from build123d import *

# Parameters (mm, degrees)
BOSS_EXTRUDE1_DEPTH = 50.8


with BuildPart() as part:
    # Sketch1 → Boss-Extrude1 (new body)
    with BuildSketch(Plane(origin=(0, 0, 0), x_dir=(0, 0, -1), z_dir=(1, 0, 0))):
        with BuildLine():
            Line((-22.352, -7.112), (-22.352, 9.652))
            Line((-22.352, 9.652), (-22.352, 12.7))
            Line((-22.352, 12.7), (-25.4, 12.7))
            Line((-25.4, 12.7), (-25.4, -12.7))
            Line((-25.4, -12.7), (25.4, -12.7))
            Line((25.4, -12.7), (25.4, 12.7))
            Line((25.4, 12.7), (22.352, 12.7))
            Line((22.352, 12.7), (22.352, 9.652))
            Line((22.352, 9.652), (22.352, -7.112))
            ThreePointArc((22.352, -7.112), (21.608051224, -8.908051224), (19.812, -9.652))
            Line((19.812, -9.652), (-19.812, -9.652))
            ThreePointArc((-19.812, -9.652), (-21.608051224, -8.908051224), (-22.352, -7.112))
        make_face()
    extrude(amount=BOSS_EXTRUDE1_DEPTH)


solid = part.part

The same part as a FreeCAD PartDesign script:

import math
import FreeCAD as App
import Part
import Sketcher

V = App.Vector
Q = App.Units.Quantity

doc = App.newDocument("Part")
body = doc.addObject("PartDesign::Body", "Body")

# Sketch on YZ plane
sketch1 = body.newObject("Sketcher::SketchObject", "Sketch")
sketch1.AttachmentSupport = (doc.getObject("YZ_Plane"), [""])
sketch1.MapMode = "FlatFace"
sketch1.addGeometry([
    Part.LineSegment(V(-7.1, 22.4, 0), V(12.7, 22.4, 0)),  # 0
    Part.LineSegment(V(12.7, 22.4, 0), V(12.7, 25.4, 0)),  # 1
    Part.LineSegment(V(12.7, 25.4, 0), V(-12.7, 25.4, 0)),  # 2
    Part.LineSegment(V(-12.7, 25.4, 0), V(-12.7, -25.4, 0)),  # 3
    Part.LineSegment(V(-12.7, -25.4, 0), V(12.7, -25.4, 0)),  # 4
    Part.LineSegment(V(12.7, -25.4, 0), V(12.7, -22.4, 0)),  # 5
    Part.LineSegment(V(12.7, -22.4, 0), V(-7.1, -22.4, 0)),  # 6
    Part.ArcOfCircle(Part.Circle(V(-7.1, -19.8, 0), V(0, 0, 1), 2.5), math.radians(-180), math.radians(-90)),  # 7
    Part.LineSegment(V(-9.7, -19.8, 0), V(-9.7, 19.8, 0)),  # 8
    Part.ArcOfCircle(Part.Circle(V(-7.1, 19.8, 0), V(0, 0, 1), 2.5), math.radians(90), math.radians(180)),  # 9
], False)
sketch1.addConstraint([
    Sketcher.Constraint("Coincident", 0, 2, 1, 1),
    Sketcher.Constraint("Coincident", 1, 2, 2, 1),
    Sketcher.Constraint("Coincident", 2, 2, 3, 1),
    Sketcher.Constraint("Coincident", 3, 2, 4, 1),
    Sketcher.Constraint("Coincident", 4, 2, 5, 1),
    Sketcher.Constraint("Coincident", 5, 2, 6, 1),
    Sketcher.Constraint("Tangent", 6, 2, 7, 2),
    Sketcher.Constraint("Tangent", 7, 1, 8, 1),
    Sketcher.Constraint("Tangent", 8, 2, 9, 2),
    Sketcher.Constraint("Tangent", 9, 1, 0, 1),
    Sketcher.Constraint("Horizontal", 0),
    Sketcher.Constraint("Vertical", 1),
    Sketcher.Constraint("Horizontal", 2),
    Sketcher.Constraint("Vertical", 3),
    Sketcher.Constraint("Horizontal", 4),
    Sketcher.Constraint("Vertical", 5),
    Sketcher.Constraint("Horizontal", 6),
    Sketcher.Constraint("Vertical", 8),
    Sketcher.Constraint("Equal", 7, 9),
    Sketcher.Constraint("Symmetric", 1, 2, 3, 2, -1, 1),
    Sketcher.Constraint("Symmetric", 0, 2, 5, 2, -1),
    Sketcher.Constraint("Radius", 7, Q("0.1 in")),
    Sketcher.Constraint("DistanceX", 2, 2, 2, 1, Q("1 in")),
    Sketcher.Constraint("DistanceY", 3, 2, 3, 1, Q("2 in")),
    Sketcher.Constraint("DistanceX", 0, 1, 0, 2, Q("0.78 in")),
    Sketcher.Constraint("DistanceY", 1, 1, 1, 2, Q("0.12 in")),
])
pad1 = body.newObject("PartDesign::Pad", "Pad")
pad1.Profile = sketch1
pad1.Length = Q("2 in")

doc.recompute()
